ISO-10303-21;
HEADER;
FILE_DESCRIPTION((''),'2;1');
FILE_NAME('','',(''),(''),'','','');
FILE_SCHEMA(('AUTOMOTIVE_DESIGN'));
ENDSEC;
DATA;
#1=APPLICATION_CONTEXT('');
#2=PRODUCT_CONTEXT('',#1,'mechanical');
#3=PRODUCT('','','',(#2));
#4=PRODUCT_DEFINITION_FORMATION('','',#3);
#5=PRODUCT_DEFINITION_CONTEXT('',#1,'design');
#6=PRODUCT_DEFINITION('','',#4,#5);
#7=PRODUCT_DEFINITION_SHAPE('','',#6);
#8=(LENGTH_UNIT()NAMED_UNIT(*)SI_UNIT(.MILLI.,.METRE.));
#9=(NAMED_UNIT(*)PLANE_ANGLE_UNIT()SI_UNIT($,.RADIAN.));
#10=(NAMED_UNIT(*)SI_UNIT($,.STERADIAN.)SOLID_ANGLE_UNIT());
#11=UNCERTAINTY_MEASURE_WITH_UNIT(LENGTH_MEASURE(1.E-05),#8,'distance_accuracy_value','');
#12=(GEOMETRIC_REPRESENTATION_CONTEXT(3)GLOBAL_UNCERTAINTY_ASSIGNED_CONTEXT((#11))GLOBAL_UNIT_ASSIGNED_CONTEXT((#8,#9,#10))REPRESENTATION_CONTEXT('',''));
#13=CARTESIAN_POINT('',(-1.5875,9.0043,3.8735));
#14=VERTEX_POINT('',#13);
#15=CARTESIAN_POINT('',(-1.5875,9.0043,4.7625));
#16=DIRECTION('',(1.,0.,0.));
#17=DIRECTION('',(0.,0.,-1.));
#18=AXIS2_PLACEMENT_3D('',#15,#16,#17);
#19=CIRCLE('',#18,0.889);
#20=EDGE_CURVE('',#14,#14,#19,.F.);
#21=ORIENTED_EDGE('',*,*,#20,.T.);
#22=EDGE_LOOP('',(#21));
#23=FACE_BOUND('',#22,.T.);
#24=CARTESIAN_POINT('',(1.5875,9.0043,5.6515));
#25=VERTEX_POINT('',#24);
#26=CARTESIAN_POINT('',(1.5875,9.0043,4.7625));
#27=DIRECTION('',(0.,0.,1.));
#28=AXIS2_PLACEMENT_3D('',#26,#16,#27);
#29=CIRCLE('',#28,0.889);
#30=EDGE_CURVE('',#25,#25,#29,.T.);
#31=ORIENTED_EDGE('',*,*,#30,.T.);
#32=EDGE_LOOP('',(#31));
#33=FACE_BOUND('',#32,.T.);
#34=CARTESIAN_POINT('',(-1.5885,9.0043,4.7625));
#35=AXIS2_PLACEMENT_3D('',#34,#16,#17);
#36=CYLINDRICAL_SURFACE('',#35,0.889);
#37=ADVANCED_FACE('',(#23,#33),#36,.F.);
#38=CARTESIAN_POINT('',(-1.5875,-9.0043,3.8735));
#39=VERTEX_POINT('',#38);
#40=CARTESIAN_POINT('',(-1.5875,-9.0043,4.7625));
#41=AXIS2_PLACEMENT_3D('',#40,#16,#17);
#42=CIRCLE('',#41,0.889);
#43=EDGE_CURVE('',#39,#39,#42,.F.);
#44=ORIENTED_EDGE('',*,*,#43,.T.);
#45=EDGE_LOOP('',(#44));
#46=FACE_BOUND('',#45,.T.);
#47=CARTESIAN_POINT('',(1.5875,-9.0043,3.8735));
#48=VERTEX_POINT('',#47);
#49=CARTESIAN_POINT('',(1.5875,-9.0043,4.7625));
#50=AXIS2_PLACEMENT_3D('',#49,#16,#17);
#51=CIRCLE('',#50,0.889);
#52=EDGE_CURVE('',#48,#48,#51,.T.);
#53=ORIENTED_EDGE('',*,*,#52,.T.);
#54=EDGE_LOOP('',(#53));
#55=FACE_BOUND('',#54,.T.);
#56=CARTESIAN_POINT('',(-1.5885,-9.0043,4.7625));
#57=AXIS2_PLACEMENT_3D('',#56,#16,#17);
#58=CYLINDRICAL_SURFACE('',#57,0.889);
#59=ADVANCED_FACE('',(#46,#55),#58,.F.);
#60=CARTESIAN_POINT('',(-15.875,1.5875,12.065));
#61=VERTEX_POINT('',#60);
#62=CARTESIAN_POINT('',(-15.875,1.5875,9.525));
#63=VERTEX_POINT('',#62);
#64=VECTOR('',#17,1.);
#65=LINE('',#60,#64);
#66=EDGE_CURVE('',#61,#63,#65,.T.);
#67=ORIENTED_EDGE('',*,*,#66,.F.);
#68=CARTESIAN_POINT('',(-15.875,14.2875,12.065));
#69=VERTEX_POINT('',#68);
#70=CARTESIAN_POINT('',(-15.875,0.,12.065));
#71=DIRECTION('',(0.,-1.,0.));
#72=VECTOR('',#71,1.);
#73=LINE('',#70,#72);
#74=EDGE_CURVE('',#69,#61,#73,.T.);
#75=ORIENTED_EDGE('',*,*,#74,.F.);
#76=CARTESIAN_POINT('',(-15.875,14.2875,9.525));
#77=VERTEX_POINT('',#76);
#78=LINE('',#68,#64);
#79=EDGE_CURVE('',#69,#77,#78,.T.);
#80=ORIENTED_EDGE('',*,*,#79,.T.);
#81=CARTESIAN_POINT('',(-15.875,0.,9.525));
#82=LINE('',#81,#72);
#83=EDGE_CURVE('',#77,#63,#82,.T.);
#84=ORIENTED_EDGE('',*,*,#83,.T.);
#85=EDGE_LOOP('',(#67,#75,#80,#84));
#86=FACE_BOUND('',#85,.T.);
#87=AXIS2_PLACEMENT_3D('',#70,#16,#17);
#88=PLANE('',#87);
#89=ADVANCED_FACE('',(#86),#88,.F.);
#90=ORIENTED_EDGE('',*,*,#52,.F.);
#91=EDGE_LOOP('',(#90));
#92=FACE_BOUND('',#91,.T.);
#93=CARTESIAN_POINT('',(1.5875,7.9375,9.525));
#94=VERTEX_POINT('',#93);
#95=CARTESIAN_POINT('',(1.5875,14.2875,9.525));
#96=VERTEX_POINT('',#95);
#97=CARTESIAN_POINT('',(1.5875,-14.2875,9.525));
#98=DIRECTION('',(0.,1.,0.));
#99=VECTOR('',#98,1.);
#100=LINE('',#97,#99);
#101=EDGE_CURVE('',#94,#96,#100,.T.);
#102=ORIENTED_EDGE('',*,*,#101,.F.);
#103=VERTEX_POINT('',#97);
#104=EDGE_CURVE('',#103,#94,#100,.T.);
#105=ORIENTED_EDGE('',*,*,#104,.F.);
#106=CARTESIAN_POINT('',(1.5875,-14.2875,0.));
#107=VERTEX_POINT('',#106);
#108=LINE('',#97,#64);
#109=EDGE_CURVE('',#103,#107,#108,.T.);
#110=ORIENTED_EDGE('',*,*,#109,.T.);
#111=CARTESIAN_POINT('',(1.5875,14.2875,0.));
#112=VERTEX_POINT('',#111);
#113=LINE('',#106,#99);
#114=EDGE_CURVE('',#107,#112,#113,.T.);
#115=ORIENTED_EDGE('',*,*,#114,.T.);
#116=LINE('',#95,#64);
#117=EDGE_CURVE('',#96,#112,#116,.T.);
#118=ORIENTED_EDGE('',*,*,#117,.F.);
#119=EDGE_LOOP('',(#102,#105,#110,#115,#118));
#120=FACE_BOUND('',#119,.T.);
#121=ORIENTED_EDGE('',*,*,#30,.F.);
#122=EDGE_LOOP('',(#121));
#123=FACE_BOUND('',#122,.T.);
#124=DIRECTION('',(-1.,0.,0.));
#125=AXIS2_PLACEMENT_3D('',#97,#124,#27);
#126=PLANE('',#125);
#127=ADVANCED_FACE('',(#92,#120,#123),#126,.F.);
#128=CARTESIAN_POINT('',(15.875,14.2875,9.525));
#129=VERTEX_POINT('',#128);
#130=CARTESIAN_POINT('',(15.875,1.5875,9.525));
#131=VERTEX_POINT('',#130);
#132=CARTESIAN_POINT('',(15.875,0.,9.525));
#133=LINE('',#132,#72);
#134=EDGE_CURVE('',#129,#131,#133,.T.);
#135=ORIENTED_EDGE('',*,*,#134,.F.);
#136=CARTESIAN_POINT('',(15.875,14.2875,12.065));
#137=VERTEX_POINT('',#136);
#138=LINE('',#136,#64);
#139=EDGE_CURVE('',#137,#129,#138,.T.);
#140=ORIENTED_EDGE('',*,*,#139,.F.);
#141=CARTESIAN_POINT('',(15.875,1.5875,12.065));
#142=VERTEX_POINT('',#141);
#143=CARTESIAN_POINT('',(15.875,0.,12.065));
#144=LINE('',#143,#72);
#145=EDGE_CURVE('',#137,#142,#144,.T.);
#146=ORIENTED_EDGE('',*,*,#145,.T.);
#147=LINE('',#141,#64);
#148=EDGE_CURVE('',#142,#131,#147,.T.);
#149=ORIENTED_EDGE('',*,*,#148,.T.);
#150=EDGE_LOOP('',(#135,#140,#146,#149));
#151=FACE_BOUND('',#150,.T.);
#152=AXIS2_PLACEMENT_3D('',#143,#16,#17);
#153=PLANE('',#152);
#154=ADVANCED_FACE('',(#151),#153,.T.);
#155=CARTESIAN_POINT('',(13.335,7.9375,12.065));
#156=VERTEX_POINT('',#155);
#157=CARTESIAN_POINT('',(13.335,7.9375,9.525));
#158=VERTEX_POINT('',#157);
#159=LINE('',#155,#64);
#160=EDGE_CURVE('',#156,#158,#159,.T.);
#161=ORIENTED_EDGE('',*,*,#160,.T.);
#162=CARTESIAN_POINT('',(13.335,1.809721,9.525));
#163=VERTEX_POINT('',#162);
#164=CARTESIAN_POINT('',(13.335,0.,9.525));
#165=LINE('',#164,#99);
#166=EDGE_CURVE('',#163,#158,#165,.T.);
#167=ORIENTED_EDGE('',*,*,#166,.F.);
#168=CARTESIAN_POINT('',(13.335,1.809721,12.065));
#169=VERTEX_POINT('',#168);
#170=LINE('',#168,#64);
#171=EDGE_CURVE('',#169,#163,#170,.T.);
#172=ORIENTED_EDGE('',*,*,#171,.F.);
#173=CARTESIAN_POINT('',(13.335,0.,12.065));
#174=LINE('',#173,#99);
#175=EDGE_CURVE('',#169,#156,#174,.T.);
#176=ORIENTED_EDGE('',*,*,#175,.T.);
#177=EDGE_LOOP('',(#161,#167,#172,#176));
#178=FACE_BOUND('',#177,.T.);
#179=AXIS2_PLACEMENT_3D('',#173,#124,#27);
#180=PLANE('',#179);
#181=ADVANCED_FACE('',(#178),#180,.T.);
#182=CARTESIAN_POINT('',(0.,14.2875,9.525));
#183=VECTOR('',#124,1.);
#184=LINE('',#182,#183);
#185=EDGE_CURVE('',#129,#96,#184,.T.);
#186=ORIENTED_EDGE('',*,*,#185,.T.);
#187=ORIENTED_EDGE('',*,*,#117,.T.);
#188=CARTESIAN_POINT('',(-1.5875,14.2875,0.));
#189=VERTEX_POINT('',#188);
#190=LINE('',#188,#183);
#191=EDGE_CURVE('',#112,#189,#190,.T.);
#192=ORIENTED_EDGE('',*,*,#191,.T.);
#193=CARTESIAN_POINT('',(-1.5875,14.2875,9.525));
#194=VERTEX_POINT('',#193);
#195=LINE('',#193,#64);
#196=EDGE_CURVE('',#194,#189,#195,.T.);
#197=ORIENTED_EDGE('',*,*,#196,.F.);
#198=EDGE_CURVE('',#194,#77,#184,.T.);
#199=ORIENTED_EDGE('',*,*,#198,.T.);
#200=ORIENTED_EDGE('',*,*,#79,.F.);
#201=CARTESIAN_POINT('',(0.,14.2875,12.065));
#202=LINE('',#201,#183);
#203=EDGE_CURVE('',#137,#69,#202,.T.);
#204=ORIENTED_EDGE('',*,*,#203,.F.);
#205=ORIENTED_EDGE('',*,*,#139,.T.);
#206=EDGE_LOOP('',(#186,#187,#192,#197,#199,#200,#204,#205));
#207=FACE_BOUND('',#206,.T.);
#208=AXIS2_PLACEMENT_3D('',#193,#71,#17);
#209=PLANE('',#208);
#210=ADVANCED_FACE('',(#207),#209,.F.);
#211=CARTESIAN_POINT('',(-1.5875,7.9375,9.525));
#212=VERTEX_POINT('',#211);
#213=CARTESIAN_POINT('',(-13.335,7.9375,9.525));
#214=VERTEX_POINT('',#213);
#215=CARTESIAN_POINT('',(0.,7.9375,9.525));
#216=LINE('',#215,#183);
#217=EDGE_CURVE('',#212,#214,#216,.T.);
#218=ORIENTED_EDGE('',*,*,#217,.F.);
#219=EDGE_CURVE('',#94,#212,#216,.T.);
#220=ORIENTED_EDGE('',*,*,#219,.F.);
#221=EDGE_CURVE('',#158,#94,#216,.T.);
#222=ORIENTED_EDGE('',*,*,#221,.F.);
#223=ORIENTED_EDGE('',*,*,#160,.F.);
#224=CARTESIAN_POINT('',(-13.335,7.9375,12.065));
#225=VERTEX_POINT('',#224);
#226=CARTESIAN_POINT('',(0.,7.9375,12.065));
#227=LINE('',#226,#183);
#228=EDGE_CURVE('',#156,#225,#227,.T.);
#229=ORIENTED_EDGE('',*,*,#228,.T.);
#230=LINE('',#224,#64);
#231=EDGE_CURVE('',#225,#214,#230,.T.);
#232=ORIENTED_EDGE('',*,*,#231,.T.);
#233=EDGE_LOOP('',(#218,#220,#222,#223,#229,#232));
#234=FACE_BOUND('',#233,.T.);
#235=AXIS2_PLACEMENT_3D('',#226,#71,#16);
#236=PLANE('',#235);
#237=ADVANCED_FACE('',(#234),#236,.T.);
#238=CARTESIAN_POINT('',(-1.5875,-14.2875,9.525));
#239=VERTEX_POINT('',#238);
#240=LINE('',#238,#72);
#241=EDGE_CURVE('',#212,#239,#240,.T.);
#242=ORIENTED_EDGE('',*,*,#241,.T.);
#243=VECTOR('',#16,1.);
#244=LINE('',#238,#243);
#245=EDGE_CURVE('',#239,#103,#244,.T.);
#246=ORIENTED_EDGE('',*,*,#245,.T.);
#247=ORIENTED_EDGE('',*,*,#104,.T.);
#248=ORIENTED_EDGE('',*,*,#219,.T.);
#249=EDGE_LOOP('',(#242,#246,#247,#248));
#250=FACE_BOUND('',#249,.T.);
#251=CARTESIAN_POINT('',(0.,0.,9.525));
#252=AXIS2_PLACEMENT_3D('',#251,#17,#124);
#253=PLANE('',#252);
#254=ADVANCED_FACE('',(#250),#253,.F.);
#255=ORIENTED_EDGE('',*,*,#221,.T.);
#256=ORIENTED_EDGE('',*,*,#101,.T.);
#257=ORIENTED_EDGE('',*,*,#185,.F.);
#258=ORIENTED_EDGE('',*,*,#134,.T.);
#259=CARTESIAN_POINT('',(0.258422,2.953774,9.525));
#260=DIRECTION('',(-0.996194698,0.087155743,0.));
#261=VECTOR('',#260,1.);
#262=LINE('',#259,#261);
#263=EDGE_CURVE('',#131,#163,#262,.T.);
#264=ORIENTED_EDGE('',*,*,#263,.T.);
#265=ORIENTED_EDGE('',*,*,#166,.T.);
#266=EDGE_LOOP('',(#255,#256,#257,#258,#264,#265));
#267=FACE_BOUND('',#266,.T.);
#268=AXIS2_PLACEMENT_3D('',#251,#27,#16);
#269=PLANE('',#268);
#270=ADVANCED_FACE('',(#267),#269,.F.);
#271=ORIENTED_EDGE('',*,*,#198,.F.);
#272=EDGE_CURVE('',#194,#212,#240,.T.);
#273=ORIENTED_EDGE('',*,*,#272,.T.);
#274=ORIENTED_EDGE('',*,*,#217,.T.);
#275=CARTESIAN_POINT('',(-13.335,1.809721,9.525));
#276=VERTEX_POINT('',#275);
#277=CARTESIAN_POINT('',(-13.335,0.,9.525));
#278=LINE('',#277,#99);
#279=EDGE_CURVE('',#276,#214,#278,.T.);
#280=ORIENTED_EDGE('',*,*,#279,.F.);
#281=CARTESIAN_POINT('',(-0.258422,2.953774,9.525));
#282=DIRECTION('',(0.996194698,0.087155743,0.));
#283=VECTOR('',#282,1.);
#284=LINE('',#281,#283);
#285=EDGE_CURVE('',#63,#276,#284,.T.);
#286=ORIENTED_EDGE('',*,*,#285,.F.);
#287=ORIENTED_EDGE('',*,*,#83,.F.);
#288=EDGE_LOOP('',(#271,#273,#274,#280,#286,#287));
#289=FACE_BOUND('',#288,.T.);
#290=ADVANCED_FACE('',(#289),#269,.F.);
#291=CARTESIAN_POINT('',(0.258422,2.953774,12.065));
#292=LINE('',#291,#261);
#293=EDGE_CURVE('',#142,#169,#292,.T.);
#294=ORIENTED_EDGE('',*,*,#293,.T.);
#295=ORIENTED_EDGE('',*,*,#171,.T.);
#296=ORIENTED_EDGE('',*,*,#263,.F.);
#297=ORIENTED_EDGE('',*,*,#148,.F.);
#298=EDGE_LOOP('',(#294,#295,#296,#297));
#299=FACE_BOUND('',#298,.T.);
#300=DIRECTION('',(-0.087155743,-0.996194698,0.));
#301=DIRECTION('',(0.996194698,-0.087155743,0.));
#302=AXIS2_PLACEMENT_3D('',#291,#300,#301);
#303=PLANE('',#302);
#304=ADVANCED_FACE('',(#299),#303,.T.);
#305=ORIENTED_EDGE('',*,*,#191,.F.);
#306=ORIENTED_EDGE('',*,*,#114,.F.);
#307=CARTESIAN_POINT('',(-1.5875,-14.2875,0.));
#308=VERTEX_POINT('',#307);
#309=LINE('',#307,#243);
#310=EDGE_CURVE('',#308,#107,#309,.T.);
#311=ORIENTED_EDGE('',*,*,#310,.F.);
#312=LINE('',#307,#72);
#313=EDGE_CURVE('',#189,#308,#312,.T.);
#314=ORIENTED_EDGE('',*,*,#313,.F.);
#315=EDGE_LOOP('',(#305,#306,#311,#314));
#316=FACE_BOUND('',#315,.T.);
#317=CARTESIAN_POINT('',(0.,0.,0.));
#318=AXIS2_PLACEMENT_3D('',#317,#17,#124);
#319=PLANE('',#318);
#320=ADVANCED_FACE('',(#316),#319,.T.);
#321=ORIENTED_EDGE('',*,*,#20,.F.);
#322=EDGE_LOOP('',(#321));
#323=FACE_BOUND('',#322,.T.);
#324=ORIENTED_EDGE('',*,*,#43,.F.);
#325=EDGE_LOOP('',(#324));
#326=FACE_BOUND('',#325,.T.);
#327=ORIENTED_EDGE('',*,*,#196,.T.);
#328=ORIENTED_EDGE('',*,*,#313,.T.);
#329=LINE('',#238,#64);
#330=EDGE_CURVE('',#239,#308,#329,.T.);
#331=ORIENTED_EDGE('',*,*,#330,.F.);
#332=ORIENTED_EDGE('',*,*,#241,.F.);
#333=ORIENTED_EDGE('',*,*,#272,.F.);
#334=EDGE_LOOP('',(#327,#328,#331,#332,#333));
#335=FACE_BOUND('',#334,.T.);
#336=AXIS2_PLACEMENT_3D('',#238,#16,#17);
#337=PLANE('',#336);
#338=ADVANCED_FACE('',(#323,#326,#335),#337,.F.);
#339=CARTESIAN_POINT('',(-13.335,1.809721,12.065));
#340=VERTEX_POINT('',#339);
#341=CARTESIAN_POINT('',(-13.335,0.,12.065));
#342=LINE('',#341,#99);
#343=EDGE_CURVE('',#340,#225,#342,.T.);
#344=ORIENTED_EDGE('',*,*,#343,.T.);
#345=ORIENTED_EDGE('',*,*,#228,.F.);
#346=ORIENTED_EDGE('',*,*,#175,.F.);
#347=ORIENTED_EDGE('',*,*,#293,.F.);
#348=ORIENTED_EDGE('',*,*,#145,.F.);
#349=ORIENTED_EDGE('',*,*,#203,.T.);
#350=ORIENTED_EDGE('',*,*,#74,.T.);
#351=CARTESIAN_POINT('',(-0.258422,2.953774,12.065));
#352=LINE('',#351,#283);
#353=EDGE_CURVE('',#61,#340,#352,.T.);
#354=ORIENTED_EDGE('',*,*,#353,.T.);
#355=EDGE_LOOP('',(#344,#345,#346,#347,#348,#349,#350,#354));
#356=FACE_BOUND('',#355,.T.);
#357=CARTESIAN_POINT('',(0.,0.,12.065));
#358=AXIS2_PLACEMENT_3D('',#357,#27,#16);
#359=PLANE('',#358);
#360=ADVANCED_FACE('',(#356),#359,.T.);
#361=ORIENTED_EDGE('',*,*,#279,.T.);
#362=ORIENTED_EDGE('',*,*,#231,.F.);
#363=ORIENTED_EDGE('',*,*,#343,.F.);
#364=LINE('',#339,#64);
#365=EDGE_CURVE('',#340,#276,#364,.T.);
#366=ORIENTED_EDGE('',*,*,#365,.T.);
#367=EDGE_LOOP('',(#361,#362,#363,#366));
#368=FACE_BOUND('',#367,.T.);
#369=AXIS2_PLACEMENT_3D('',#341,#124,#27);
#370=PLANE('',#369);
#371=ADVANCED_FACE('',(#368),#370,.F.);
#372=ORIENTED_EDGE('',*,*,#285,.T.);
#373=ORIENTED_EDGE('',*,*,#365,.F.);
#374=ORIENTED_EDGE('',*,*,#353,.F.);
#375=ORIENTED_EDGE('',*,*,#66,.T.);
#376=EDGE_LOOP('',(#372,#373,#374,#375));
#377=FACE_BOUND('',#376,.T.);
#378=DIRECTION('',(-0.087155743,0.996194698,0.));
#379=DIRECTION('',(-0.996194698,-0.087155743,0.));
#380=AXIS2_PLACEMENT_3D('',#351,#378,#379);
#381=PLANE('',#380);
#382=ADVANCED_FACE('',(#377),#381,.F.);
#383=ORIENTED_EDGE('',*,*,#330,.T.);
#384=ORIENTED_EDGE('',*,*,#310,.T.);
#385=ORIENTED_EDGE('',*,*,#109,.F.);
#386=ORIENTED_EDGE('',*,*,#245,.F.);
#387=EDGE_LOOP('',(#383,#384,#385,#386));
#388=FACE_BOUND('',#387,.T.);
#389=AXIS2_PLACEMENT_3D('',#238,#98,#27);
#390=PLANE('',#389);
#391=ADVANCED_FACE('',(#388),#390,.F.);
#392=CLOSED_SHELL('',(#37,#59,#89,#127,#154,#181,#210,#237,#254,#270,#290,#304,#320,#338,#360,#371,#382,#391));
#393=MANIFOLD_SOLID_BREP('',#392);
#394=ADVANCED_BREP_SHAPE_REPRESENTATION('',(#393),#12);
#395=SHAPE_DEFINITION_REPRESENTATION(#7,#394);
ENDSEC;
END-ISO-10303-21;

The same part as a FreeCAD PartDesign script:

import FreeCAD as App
import Part
import Sketcher
Q = App.Units.Quantity

doc = App.newDocument("Part")
body = doc.addObject("PartDesign::Body", "Body")

# Sketch on XY plane
sketch1 = body.newObject("Sketcher::SketchObject", "Sketch")
sketch1.AttachmentSupport = (doc.getObject("XY_Plane"), [""])
sketch1.MapMode = "FlatFace"
sketch1.addGeometry(Part.LineSegment(App.Vector(-1.6, 14.3, 0), App.Vector(-1.6, -14.3, 0)), False)
sketch1.addGeometry(Part.LineSegment(App.Vector(-1.6, -14.3, 0), App.Vector(1.6, -14.3, 0)), False)
sketch1.addGeometry(Part.LineSegment(App.Vector(1.6, -14.3, 0), App.Vector(1.6, 14.3, 0)), False)
sketch1.addGeometry(Part.LineSegment(App.Vector(1.6, 14.3, 0), App.Vector(-1.6, 14.3, 0)), False)
sketch1.addConstraint(Sketcher.Constraint("Coincident", 0, 2, 1, 1))
sketch1.addConstraint(Sketcher.Constraint("Coincident", 1, 2, 2, 1))
sketch1.addConstraint(Sketcher.Constraint("Coincident", 2, 2, 3, 1))
sketch1.addConstraint(Sketcher.Constraint("Coincident", 3, 2, 0, 1))
sketch1.addConstraint(Sketcher.Constraint("Vertical", 0))
sketch1.addConstraint(Sketcher.Constraint("Horizontal", 1))
sketch1.addConstraint(Sketcher.Constraint("Vertical", 2))
sketch1.addConstraint(Sketcher.Constraint("Horizontal", 3))
sketch1.addConstraint(Sketcher.Constraint("Symmetric", 0, 2, 2, 2, -1, 1))
sketch1.addConstraint(Sketcher.Constraint("DistanceX", 1, 1, 1, 2, Q("0.125 in")))
sketch1.addConstraint(Sketcher.Constraint("DistanceY", 0, 2, 0, 1, Q("1.125 in")))
pad1 = body.newObject("PartDesign::Pad", "Pad")
pad1.Profile = sketch1
pad1.Length = Q("0.375 in")

# Sketch on YZ plane
sketch2 = body.newObject("Sketcher::SketchObject", "Sketch001")
sketch2.AttachmentSupport = (doc.getObject("YZ_Plane"), [""])
sketch2.MapMode = "FlatFace"
sketch2.AttachmentOffset = App.Placement(App.Vector(0, 0, 0.0625 * 25.4), App.Rotation())
sketch2.addGeometry(Part.Circle(App.Vector(-9, 4.8, 0), App.Vector(0, 0, 1), 0.9), False)
sketch2.addConstraint(Sketcher.Constraint("Diameter", 0, Q("0.07 in")))
sketch2.addConstraint(Sketcher.Constraint("DistanceY", -1, 1, 0, 3, Q("0.1875 in")))
sketch2.addConstraint(Sketcher.Constraint("DistanceX", 0, 3, -1, 1, Q("0.3545 in")))
pocket1 = body.newObject("PartDesign::Pocket", "Pocket")
pocket1.Profile = sketch2
pocket1.Type = "UpToFirst"

# Sketch on YZ plane
sketch3 = body.newObject("Sketcher::SketchObject", "Sketch002")
sketch3.AttachmentSupport = (doc.getObject("YZ_Plane"), [""])
sketch3.MapMode = "FlatFace"
sketch3.AttachmentOffset = App.Placement(App.Vector(0, 0, 0.0625 * 25.4), App.Rotation())
sketch3.addGeometry(Part.Circle(App.Vector(9, 4.8, 0), App.Vector(0, 0, 1), 0.9), False)
sketch3.addConstraint(Sketcher.Constraint("Diameter", 0, Q("0.07 in")))
sketch3.addConstraint(Sketcher.Constraint("DistanceY", -1, 1, 0, 3, Q("0.1875 in")))
sketch3.addConstraint(Sketcher.Constraint("DistanceX", -1, 1, 0, 3, Q("0.3545 in")))
pocket2 = body.newObject("PartDesign::Pocket", "Pocket001")
pocket2.Profile = sketch3
pocket2.Type = "UpToFirst"

# Sketch on XY plane
sketch4 = body.newObject("Sketcher::SketchObject", "Sketch003")
sketch4.AttachmentSupport = (doc.getObject("XY_Plane"), [""])
sketch4.MapMode = "FlatFace"
sketch4.AttachmentOffset = App.Placement(App.Vector(0, 0, 0.375 * 25.4), App.Rotation())
sketch4.addGeometry(Part.LineSegment(App.Vector(-15.9, 14.3, 0), App.Vector(-15.9, 1.6, 0)), False)
sketch4.addGeometry(Part.LineSegment(App.Vector(-15.9, 1.6, 0), App.Vector(-13.3, 1.8, 0)), False)
sketch4.addGeometry(Part.LineSegment(App.Vector(-13.3, 1.8, 0), App.Vector(-13.3, 7.9, 0)), False)
sketch4.addGeometry(Part.LineSegment(App.Vector(-13.3, 7.9, 0), App.Vector(13.3, 7.9, 0)), False)
sketch4.addGeometry(Part.LineSegment(App.Vector(13.3, 7.9, 0), App.Vector(13.3, 1.8, 0)), False)
sketch4.addGeometry(Part.LineSegment(App.Vector(13.3, 1.8, 0), App.Vector(15.9, 1.6, 0)), False)
sketch4.addGeometry(Part.LineSegment(App.Vector(15.9, 1.6, 0), App.Vector(15.9, 14.3, 0)), False)
sketch4.addGeometry(Part.LineSegment(App.Vector(15.9, 14.3, 0), App.Vector(-15.9, 14.3, 0)), False)
sketch4.addConstraint(Sketcher.Constraint("Coincident", 0, 2, 1, 1))
sketch4.addConstraint(Sketcher.Constraint("Coincident", 1, 2, 2, 1))
sketch4.addConstraint(Sketcher.Constraint("Coincident", 2, 2, 3, 1))
sketch4.addConstraint(Sketcher.Constraint("Coincident", 3, 2, 4, 1))
sketch4.addConstraint(Sketcher.Constraint("Coincident", 4, 2, 5, 1))
sketch4.addConstraint(Sketcher.Constraint("Coincident", 5, 2, 6, 1))
sketch4.addConstraint(Sketcher.Constraint("Coincident", 6, 2, 7, 1))
sketch4.addConstraint(Sketcher.Constraint("Coincident", 7, 2, 0, 1))
sketch4.addConstraint(Sketcher.Constraint("Vertical", 0))
sketch4.addConstraint(Sketcher.Constraint("Vertical", 2))
sketch4.addConstraint(Sketcher.Constraint("Horizontal", 3))
sketch4.addConstraint(Sketcher.Constraint("Vertical", 4))
sketch4.addConstraint(Sketcher.Constraint("Vertical", 6))
sketch4.addConstraint(Sketcher.Constraint("Horizontal", 7))
sketch4.addConstraint(Sketcher.Constraint("Symmetric", 1, 2, 4, 2, -2))
sketch4.addConstraint(Sketcher.Constraint("Symmetric", 0, 2, 5, 2, -2))
sketch4.addConstraint(Sketcher.Constraint("DistanceY", 0, 2, 0, 1, Q("0.5 in")))
sketch4.addConstraint(Sketcher.Constraint("Angle", 1, Q("5 deg")))
sketch4.addConstraint(Sketcher.Constraint("DistanceX", 3, 1, 3, 2, Q("1.05 in")))
sketch4.addConstraint(Sketcher.Constraint("DistanceX", 7, 2, 7, 1, Q("1.25 in")))
sketch4.addConstraint(Sketcher.Constraint("DistanceY", 0, 2, 2, 2, Q("0.25 in")))
sketch4.addConstraint(Sketcher.Constraint("DistanceY", -1, 1, 0, 2, Q("0.0625 in")))
pad2 = body.newObject("PartDesign::Pad", "Pad001")
pad2.Profile = sketch4
pad2.Length = Q("0.1 in")

doc.recompute()
